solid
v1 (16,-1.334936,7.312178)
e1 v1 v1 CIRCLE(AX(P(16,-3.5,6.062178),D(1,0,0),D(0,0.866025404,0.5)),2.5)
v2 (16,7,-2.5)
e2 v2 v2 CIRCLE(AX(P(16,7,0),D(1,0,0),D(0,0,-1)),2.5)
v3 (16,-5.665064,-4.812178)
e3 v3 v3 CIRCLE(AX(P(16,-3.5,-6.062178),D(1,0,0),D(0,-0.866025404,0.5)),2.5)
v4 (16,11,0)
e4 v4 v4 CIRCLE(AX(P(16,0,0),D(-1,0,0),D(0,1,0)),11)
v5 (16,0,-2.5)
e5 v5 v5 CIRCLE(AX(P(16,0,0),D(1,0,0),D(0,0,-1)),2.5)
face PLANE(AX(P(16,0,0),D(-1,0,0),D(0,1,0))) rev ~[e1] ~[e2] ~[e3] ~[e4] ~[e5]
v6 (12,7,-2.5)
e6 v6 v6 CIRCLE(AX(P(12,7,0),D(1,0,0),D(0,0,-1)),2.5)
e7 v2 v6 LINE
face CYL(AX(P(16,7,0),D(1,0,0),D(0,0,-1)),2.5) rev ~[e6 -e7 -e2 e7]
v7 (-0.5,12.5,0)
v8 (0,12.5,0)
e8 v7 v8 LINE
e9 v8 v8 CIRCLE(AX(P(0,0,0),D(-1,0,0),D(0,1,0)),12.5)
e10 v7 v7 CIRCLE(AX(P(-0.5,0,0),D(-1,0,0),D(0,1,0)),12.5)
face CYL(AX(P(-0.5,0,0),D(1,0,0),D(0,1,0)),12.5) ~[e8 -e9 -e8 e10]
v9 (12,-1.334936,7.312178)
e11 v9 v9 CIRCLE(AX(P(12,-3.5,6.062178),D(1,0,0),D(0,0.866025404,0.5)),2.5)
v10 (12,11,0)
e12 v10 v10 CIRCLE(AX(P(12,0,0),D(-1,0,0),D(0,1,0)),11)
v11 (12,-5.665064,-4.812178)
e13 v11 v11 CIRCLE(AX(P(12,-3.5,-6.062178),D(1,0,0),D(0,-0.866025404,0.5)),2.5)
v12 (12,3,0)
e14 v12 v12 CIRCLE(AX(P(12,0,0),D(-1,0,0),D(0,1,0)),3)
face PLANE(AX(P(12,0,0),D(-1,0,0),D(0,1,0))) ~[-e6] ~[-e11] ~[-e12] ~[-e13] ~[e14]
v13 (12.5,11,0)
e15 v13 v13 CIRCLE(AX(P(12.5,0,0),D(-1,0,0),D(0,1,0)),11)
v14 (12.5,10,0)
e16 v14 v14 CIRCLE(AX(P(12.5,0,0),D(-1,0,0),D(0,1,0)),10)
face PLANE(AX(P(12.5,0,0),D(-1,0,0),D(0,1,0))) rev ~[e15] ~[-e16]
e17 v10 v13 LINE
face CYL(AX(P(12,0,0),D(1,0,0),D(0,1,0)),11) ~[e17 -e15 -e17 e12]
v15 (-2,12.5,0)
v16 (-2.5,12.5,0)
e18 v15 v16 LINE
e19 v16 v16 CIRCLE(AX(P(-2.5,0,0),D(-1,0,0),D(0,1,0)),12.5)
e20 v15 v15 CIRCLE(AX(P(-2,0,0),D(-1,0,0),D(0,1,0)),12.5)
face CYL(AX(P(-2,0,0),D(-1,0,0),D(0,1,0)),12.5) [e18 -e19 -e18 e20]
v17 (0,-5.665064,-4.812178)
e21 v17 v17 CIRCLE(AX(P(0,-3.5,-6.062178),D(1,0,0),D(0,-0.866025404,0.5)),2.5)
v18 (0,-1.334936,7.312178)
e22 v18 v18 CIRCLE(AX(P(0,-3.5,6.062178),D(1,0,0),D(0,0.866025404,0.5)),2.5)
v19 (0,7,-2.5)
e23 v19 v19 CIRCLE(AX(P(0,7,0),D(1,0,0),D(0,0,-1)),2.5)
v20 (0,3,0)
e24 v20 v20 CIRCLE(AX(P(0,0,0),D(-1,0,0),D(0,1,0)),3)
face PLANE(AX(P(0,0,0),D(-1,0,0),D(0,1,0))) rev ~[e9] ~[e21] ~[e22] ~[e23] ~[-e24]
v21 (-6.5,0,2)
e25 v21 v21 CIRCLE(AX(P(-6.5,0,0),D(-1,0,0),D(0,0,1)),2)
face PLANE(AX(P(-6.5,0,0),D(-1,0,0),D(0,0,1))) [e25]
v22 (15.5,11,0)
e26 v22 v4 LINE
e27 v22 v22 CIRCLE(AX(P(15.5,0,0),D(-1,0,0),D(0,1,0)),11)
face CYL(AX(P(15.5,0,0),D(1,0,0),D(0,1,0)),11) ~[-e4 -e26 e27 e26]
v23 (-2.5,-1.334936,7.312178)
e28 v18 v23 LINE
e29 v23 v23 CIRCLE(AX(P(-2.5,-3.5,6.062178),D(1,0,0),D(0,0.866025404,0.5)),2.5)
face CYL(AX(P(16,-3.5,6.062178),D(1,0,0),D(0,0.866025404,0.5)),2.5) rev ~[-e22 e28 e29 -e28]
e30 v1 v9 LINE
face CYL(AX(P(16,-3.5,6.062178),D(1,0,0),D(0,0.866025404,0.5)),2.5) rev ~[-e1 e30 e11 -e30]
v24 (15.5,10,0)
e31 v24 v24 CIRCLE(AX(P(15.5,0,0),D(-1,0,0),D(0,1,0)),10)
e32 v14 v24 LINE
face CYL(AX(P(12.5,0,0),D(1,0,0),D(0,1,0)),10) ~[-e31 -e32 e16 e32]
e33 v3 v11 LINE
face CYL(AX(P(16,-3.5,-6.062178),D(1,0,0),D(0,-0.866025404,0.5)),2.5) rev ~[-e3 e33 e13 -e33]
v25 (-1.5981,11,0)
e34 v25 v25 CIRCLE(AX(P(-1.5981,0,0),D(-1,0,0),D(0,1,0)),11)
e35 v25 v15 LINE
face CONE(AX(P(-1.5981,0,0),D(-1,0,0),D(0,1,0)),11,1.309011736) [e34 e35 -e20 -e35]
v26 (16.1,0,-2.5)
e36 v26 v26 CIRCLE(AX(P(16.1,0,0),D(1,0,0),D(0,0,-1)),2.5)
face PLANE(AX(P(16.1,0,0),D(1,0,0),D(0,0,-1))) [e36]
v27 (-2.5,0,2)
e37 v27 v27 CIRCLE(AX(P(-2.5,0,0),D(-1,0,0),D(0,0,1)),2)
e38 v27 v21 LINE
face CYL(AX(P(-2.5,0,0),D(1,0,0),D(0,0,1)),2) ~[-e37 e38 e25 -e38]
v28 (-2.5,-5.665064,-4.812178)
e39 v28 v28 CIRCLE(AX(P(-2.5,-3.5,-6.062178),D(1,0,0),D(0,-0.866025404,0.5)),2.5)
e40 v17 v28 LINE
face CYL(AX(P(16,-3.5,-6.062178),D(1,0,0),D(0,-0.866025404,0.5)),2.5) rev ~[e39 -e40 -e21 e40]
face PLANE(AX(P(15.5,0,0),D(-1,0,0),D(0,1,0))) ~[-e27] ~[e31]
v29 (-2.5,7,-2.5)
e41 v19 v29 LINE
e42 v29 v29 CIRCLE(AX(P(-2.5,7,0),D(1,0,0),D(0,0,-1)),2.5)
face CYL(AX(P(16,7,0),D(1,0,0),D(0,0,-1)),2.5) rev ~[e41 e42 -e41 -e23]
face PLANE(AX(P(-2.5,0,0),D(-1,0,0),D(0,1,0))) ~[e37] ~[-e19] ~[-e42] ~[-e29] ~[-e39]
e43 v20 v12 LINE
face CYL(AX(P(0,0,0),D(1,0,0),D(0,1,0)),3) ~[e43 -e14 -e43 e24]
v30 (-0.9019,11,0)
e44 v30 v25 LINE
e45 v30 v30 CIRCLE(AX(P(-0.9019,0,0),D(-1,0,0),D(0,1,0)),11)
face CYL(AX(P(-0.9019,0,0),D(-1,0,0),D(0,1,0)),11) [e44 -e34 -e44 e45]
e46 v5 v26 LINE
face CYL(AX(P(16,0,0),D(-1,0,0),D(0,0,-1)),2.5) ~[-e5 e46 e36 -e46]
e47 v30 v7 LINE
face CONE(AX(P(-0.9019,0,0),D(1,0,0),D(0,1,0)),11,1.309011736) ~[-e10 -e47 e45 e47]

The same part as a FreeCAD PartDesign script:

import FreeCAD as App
import Part
import Sketcher

V = App.Vector
Q = App.Units.Quantity


def add_polygon(sketch, points):
    """Adds a closed chain of lines whose ends are joined by coincident constraints."""
    first, n = sketch.GeometryCount, len(points)
    for a, b in zip(points, points[1:] + points[:1]):
        sketch.addGeometry(Part.LineSegment(App.Vector(*a, 0), App.Vector(*b, 0)), False)
    for i in range(n):
        sketch.addConstraint(Sketcher.Constraint("Coincident", first + i, 2, first + (i + 1) % n, 1))

doc = App.newDocument("Part")
body = doc.addObject("PartDesign::Body", "Body")

sketch1 = doc.addObject("Sketcher::SketchObject", "Sketch")
body.addObject(sketch1)
sketch1.AttachmentSupport = (doc.XY_Plane, [""])
sketch1.MapMode = "FlatFace"
add_polygon(sketch1, [(0, 3), (0, 0), (16, 0), (16, 11), (15.5, 11), (15.5, 10), (12.5, 10), (12.5, 11), (12, 11), (12, 3)])
sketch1.addConstraint([
    Sketcher.Constraint("Vertical", 0),
    Sketcher.Constraint("Horizontal", 1),
    Sketcher.Constraint("Vertical", 2),
    Sketcher.Constraint("Horizontal", 3),
    Sketcher.Constraint("Vertical", 4),
    Sketcher.Constraint("Horizontal", 5),
    Sketcher.Constraint("Vertical", 6),
    Sketcher.Constraint("Horizontal", 7),
    Sketcher.Constraint("Vertical", 8),
    Sketcher.Constraint("Horizontal", 9),
    Sketcher.Constraint("Coincident", 0, 2, -1, 1),
    Sketcher.Constraint("Horizontal", 3, 2, 6, 2),
    Sketcher.Constraint("Equal", 3, 7),
    Sketcher.Constraint("Equal", 5, 0),
    Sketcher.Constraint("DistanceX", 5, 2, 5, 1, Q("3 mm")),
    Sketcher.Constraint("DistanceX", 9, 2, 9, 1, Q("12 mm")),
    Sketcher.Constraint("DistanceY", 4, 2, 4, 1, Q("1 mm")),
    Sketcher.Constraint("DistanceX", 3, 2, 3, 1, Q("0.5 mm")),
    Sketcher.Constraint("DistanceY", -1, 1, 4, 2, Q("10 mm")),
])
revolution = doc.addObject("PartDesign::Revolution", "Revolution")
body.addObject(revolution)
revolution.Profile = sketch1
revolution.ReferenceAxis = (sketch1, ["H_Axis"])
revolution.Angle = 360

sketch2 = doc.addObject("Sketcher::SketchObject", "Sketch001")
body.addObject(sketch2)
sketch2.AttachmentSupport = (doc.XY_Plane, [""])
sketch2.MapMode = "FlatFace"
add_polygon(sketch2, [(-2.5, 0), (0, 0), (0, 12.5), (-0.5, 12.5), (-0.9, 11), (-1.6, 11), (-2, 12.5), (-2.5, 12.5)])
sketch2.addConstraint([
    Sketcher.Constraint("Horizontal", 0),
    Sketcher.Constraint("Vertical", 1),
    Sketcher.Constraint("Horizontal", 2),
    Sketcher.Constraint("Horizontal", 4),
    Sketcher.Constraint("Horizontal", 6),
    Sketcher.Constraint("Vertical", 7),
    Sketcher.Constraint("Coincident", 0, 2, -1, 1),
    Sketcher.Constraint("Horizontal", 2, 2, 5, 2),
    Sketcher.Constraint("Equal", 2, 6),
    Sketcher.Constraint("Equal", 3, 5),
    Sketcher.Constraint("DistanceX", 0, 1, 0, 2, Q("2.5 mm")),
    Sketcher.Constraint("DistanceY", 1, 1, 1, 2, Q("12.5 mm")),
    Sketcher.Constraint("DistanceY", 3, 2, 2, 2, Q("1.5 mm")),
    Sketcher.Constraint("DistanceX", 5, 2, 2, 2, Q("1.5 mm")),
    Sketcher.Constraint("Angle", 3, Q("-104.9992 deg")),
])
revolution2 = doc.addObject("PartDesign::Revolution", "Revolution001")
body.addObject(revolution2)
revolution2.Profile = sketch2
revolution2.ReferenceAxis = (sketch2, ["H_Axis"])
revolution2.Angle = 360

sketch3 = doc.addObject("Sketcher::SketchObject", "Sketch002")
body.addObject(sketch3)
sketch3.AttachmentSupport = (doc.YZ_Plane, [""])
sketch3.MapMode = "FlatFace"
sketch3.AttachmentOffset = App.Placement(V(0, 0, -2.5), App.Rotation())
sketch3.addGeometry(Part.Circle(V(0, 0, 0), V(0, 0, 1), 2), False)
sketch3.addConstraint([
    Sketcher.Constraint("Coincident", 0, 3, -1, 1),
    Sketcher.Constraint("Diameter", 0, Q("4 mm")),
])
pad1 = doc.addObject("PartDesign::Pad", "Pad")
body.addObject(pad1)
pad1.Profile = sketch3
pad1.Length = 4
pad1.Reversed = True

sketch4 = doc.addObject("Sketcher::SketchObject", "Sketch003")
body.addObject(sketch4)
sketch4.AttachmentSupport = (doc.YZ_Plane, [""])
sketch4.MapMode = "FlatFace"
sketch4.AttachmentOffset = App.Placement(V(0, 0, 16), App.Rotation())
sketch4.addGeometry(Part.Circle(V(7, 0, 0), V(0, 0, 1), 2.5), False)
sketch4.addConstraint([
    Sketcher.Constraint("PointOnObject", 0, 3, -1),
    Sketcher.Constraint("Diameter", 0, Q("5 mm")),
    Sketcher.Constraint("DistanceX", -1, 1, 0, 3, Q("7 mm")),
])
pocket1 = doc.addObject("PartDesign::Pocket", "Pocket")
body.addObject(pocket1)
pocket1.Profile = sketch4
pocket1.Type = "ThroughAll"
doc.recompute()

polarpattern = doc.addObject("PartDesign::PolarPattern", "PolarPattern")
body.addObject(polarpattern)
polarpattern.Originals = [pocket1]
polarpattern.Axis = (doc.X_Axis, [""])
polarpattern.Angle = 360
polarpattern.Occurrences = 3
body.Tip = polarpattern

sketch5 = doc.addObject("Sketcher::SketchObject", "Sketch004")
body.addObject(sketch5)
sketch5.AttachmentSupport = (doc.YZ_Plane, [""])
sketch5.MapMode = "FlatFace"
sketch5.AttachmentOffset = App.Placement(V(0, 0, 16), App.Rotation())
sketch5.addGeometry(Part.Circle(V(0, 0, 0), V(0, 0, 1), 2.5), False)
sketch5.addConstraint([
    Sketcher.Constraint("Coincident", 0, 3, -1, 1),
    Sketcher.Constraint("Diameter", 0, Q("5 mm")),
])
pad2 = doc.addObject("PartDesign::Pad", "Pad001")
body.addObject(pad2)
pad2.Profile = sketch5
pad2.Length = 0.1

doc.recompute()
